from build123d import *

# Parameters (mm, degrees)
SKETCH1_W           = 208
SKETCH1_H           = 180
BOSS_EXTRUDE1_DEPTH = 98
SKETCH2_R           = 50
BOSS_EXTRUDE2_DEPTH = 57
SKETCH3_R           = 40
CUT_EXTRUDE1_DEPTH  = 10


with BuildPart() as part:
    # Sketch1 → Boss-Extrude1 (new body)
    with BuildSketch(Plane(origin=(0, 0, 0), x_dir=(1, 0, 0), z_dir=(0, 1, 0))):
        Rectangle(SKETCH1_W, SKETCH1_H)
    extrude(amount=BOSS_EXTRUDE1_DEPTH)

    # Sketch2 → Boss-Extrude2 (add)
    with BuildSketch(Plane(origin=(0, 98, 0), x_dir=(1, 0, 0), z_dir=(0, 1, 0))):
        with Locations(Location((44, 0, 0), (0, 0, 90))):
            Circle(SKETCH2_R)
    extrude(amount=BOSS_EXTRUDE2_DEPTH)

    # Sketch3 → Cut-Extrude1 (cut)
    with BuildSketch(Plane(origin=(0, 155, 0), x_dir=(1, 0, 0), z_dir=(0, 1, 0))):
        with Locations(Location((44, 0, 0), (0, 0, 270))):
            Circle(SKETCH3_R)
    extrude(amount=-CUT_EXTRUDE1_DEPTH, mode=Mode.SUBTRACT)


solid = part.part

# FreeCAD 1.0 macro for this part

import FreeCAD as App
import Part
import Sketcher

V = App.Vector
Q = App.Units.Quantity

doc = App.newDocument("Part")
params = doc.addObject("Spreadsheet::Sheet", "Params")
for row, (alias, value) in enumerate([
    ("sketch1_width", "208 mm"),
    ("sketch1_height", "180 mm"),
    ("pad1_length", "98 mm"),
    ("sketch2_diameter", "100 mm"),
    ("pad2_length", "57 mm"),
    ("sketch3_diameter", "80 mm"),
    ("pocket1_length", "10 mm"),
], start=1):
    params.set(f"A{row}", alias)
    params.set(f"B{row}", "=" + value)
    params.setAlias(f"B{row}", alias)

body = doc.addObject("PartDesign::Body", "Body")

# Sketch on XZ plane
sketch1 = doc.addObject("Sketcher::SketchObject", "Sketch")
body.addObject(sketch1)
sketch1.AttachmentSupport = (doc.XZ_Plane, [""])
sketch1.MapMode = "FlatFace"
sketch1.addGeometry([
    Part.LineSegment(V(-104, -90, 0), V(-104, 90, 0)),
    Part.LineSegment(V(-104, 90, 0), V(104, 90, 0)),
    Part.LineSegment(V(104, 90, 0), V(104, -90, 0)),
    Part.LineSegment(V(104, -90, 0), V(-104, -90, 0)),
], False)
sketch1.addConstraint([
    Sketcher.Constraint("Coincident", 0, 2, 1, 1),
    Sketcher.Constraint("Coincident", 1, 2, 2, 1),
    Sketcher.Constraint("Coincident", 2, 2, 3, 1),
    Sketcher.Constraint("Coincident", 3, 2, 0, 1),
    Sketcher.Constraint("Vertical", 0),
    Sketcher.Constraint("Horizontal", 1),
    Sketcher.Constraint("Vertical", 2),
    Sketcher.Constraint("Horizontal", 3),
    Sketcher.Constraint("Symmetric", 0, 2, 2, 2, -1, 1),
    Sketcher.Constraint("DistanceX", 1, 1, 1, 2, Q("208 mm")),
    Sketcher.Constraint("DistanceY", 0, 1, 0, 2, Q("180 mm")),
])
sketch1.setExpression("Constraints[9]", "Params.sketch1_width")
sketch1.setExpression("Constraints[10]", "Params.sketch1_height")
pad1 = doc.addObject("PartDesign::Pad", "Pad")
body.addObject(pad1)
pad1.Profile = sketch1
pad1.setExpression("Length", "Params.pad1_length")
pad1.Reversed = True

# Sketch on XZ plane
sketch2 = doc.addObject("Sketcher::SketchObject", "Sketch001")
body.addObject(sketch2)
sketch2.AttachmentSupport = (doc.XZ_Plane, [""])
sketch2.MapMode = "FlatFace"
sketch2.AttachmentOffset = App.Placement(V(0, 0, -98), App.Rotation())
sketch2.addGeometry(Part.Circle(V(44, 0, 0), V(0, 0, 1), 50), False)
sketch2.addConstraint([
    Sketcher.Constraint("PointOnObject", 0, 3, -1),
    Sketcher.Constraint("Diameter", 0, Q("100 mm")),
    Sketcher.Constraint("DistanceX", -1, 1, 0, 3, Q("44 mm")),
])
sketch2.setExpression("Constraints[1]", "Params.sketch2_diameter")
pad2 = doc.addObject("PartDesign::Pad", "Pad001")
body.addObject(pad2)
pad2.Profile = sketch2
pad2.setExpression("Length", "Params.pad2_length")
pad2.Reversed = True

# Sketch on XZ plane
sketch3 = doc.addObject("Sketcher::SketchObject", "Sketch002")
body.addObject(sketch3)
sketch3.AttachmentSupport = (doc.XZ_Plane, [""])
sketch3.MapMode = "FlatFace"
sketch3.AttachmentOffset = App.Placement(V(0, 0, -155), App.Rotation())
sketch3.addGeometry(Part.Circle(V(44, 0, 0), V(0, 0, 1), 40), False)
sketch3.addConstraint([
    Sketcher.Constraint("PointOnObject", 0, 3, -1),
    Sketcher.Constraint("Diameter", 0, Q("80 mm")),
    Sketcher.Constraint("DistanceX", -1, 1, 0, 3, Q("44 mm")),
])
sketch3.setExpression("Constraints[1]", "Params.sketch3_diameter")
pocket1 = doc.addObject("PartDesign::Pocket", "Pocket")
body.addObject(pocket1)
pocket1.Profile = sketch3
pocket1.setExpression("Length", "Params.pocket1_length")
pocket1.Reversed = True

doc.recompute()
